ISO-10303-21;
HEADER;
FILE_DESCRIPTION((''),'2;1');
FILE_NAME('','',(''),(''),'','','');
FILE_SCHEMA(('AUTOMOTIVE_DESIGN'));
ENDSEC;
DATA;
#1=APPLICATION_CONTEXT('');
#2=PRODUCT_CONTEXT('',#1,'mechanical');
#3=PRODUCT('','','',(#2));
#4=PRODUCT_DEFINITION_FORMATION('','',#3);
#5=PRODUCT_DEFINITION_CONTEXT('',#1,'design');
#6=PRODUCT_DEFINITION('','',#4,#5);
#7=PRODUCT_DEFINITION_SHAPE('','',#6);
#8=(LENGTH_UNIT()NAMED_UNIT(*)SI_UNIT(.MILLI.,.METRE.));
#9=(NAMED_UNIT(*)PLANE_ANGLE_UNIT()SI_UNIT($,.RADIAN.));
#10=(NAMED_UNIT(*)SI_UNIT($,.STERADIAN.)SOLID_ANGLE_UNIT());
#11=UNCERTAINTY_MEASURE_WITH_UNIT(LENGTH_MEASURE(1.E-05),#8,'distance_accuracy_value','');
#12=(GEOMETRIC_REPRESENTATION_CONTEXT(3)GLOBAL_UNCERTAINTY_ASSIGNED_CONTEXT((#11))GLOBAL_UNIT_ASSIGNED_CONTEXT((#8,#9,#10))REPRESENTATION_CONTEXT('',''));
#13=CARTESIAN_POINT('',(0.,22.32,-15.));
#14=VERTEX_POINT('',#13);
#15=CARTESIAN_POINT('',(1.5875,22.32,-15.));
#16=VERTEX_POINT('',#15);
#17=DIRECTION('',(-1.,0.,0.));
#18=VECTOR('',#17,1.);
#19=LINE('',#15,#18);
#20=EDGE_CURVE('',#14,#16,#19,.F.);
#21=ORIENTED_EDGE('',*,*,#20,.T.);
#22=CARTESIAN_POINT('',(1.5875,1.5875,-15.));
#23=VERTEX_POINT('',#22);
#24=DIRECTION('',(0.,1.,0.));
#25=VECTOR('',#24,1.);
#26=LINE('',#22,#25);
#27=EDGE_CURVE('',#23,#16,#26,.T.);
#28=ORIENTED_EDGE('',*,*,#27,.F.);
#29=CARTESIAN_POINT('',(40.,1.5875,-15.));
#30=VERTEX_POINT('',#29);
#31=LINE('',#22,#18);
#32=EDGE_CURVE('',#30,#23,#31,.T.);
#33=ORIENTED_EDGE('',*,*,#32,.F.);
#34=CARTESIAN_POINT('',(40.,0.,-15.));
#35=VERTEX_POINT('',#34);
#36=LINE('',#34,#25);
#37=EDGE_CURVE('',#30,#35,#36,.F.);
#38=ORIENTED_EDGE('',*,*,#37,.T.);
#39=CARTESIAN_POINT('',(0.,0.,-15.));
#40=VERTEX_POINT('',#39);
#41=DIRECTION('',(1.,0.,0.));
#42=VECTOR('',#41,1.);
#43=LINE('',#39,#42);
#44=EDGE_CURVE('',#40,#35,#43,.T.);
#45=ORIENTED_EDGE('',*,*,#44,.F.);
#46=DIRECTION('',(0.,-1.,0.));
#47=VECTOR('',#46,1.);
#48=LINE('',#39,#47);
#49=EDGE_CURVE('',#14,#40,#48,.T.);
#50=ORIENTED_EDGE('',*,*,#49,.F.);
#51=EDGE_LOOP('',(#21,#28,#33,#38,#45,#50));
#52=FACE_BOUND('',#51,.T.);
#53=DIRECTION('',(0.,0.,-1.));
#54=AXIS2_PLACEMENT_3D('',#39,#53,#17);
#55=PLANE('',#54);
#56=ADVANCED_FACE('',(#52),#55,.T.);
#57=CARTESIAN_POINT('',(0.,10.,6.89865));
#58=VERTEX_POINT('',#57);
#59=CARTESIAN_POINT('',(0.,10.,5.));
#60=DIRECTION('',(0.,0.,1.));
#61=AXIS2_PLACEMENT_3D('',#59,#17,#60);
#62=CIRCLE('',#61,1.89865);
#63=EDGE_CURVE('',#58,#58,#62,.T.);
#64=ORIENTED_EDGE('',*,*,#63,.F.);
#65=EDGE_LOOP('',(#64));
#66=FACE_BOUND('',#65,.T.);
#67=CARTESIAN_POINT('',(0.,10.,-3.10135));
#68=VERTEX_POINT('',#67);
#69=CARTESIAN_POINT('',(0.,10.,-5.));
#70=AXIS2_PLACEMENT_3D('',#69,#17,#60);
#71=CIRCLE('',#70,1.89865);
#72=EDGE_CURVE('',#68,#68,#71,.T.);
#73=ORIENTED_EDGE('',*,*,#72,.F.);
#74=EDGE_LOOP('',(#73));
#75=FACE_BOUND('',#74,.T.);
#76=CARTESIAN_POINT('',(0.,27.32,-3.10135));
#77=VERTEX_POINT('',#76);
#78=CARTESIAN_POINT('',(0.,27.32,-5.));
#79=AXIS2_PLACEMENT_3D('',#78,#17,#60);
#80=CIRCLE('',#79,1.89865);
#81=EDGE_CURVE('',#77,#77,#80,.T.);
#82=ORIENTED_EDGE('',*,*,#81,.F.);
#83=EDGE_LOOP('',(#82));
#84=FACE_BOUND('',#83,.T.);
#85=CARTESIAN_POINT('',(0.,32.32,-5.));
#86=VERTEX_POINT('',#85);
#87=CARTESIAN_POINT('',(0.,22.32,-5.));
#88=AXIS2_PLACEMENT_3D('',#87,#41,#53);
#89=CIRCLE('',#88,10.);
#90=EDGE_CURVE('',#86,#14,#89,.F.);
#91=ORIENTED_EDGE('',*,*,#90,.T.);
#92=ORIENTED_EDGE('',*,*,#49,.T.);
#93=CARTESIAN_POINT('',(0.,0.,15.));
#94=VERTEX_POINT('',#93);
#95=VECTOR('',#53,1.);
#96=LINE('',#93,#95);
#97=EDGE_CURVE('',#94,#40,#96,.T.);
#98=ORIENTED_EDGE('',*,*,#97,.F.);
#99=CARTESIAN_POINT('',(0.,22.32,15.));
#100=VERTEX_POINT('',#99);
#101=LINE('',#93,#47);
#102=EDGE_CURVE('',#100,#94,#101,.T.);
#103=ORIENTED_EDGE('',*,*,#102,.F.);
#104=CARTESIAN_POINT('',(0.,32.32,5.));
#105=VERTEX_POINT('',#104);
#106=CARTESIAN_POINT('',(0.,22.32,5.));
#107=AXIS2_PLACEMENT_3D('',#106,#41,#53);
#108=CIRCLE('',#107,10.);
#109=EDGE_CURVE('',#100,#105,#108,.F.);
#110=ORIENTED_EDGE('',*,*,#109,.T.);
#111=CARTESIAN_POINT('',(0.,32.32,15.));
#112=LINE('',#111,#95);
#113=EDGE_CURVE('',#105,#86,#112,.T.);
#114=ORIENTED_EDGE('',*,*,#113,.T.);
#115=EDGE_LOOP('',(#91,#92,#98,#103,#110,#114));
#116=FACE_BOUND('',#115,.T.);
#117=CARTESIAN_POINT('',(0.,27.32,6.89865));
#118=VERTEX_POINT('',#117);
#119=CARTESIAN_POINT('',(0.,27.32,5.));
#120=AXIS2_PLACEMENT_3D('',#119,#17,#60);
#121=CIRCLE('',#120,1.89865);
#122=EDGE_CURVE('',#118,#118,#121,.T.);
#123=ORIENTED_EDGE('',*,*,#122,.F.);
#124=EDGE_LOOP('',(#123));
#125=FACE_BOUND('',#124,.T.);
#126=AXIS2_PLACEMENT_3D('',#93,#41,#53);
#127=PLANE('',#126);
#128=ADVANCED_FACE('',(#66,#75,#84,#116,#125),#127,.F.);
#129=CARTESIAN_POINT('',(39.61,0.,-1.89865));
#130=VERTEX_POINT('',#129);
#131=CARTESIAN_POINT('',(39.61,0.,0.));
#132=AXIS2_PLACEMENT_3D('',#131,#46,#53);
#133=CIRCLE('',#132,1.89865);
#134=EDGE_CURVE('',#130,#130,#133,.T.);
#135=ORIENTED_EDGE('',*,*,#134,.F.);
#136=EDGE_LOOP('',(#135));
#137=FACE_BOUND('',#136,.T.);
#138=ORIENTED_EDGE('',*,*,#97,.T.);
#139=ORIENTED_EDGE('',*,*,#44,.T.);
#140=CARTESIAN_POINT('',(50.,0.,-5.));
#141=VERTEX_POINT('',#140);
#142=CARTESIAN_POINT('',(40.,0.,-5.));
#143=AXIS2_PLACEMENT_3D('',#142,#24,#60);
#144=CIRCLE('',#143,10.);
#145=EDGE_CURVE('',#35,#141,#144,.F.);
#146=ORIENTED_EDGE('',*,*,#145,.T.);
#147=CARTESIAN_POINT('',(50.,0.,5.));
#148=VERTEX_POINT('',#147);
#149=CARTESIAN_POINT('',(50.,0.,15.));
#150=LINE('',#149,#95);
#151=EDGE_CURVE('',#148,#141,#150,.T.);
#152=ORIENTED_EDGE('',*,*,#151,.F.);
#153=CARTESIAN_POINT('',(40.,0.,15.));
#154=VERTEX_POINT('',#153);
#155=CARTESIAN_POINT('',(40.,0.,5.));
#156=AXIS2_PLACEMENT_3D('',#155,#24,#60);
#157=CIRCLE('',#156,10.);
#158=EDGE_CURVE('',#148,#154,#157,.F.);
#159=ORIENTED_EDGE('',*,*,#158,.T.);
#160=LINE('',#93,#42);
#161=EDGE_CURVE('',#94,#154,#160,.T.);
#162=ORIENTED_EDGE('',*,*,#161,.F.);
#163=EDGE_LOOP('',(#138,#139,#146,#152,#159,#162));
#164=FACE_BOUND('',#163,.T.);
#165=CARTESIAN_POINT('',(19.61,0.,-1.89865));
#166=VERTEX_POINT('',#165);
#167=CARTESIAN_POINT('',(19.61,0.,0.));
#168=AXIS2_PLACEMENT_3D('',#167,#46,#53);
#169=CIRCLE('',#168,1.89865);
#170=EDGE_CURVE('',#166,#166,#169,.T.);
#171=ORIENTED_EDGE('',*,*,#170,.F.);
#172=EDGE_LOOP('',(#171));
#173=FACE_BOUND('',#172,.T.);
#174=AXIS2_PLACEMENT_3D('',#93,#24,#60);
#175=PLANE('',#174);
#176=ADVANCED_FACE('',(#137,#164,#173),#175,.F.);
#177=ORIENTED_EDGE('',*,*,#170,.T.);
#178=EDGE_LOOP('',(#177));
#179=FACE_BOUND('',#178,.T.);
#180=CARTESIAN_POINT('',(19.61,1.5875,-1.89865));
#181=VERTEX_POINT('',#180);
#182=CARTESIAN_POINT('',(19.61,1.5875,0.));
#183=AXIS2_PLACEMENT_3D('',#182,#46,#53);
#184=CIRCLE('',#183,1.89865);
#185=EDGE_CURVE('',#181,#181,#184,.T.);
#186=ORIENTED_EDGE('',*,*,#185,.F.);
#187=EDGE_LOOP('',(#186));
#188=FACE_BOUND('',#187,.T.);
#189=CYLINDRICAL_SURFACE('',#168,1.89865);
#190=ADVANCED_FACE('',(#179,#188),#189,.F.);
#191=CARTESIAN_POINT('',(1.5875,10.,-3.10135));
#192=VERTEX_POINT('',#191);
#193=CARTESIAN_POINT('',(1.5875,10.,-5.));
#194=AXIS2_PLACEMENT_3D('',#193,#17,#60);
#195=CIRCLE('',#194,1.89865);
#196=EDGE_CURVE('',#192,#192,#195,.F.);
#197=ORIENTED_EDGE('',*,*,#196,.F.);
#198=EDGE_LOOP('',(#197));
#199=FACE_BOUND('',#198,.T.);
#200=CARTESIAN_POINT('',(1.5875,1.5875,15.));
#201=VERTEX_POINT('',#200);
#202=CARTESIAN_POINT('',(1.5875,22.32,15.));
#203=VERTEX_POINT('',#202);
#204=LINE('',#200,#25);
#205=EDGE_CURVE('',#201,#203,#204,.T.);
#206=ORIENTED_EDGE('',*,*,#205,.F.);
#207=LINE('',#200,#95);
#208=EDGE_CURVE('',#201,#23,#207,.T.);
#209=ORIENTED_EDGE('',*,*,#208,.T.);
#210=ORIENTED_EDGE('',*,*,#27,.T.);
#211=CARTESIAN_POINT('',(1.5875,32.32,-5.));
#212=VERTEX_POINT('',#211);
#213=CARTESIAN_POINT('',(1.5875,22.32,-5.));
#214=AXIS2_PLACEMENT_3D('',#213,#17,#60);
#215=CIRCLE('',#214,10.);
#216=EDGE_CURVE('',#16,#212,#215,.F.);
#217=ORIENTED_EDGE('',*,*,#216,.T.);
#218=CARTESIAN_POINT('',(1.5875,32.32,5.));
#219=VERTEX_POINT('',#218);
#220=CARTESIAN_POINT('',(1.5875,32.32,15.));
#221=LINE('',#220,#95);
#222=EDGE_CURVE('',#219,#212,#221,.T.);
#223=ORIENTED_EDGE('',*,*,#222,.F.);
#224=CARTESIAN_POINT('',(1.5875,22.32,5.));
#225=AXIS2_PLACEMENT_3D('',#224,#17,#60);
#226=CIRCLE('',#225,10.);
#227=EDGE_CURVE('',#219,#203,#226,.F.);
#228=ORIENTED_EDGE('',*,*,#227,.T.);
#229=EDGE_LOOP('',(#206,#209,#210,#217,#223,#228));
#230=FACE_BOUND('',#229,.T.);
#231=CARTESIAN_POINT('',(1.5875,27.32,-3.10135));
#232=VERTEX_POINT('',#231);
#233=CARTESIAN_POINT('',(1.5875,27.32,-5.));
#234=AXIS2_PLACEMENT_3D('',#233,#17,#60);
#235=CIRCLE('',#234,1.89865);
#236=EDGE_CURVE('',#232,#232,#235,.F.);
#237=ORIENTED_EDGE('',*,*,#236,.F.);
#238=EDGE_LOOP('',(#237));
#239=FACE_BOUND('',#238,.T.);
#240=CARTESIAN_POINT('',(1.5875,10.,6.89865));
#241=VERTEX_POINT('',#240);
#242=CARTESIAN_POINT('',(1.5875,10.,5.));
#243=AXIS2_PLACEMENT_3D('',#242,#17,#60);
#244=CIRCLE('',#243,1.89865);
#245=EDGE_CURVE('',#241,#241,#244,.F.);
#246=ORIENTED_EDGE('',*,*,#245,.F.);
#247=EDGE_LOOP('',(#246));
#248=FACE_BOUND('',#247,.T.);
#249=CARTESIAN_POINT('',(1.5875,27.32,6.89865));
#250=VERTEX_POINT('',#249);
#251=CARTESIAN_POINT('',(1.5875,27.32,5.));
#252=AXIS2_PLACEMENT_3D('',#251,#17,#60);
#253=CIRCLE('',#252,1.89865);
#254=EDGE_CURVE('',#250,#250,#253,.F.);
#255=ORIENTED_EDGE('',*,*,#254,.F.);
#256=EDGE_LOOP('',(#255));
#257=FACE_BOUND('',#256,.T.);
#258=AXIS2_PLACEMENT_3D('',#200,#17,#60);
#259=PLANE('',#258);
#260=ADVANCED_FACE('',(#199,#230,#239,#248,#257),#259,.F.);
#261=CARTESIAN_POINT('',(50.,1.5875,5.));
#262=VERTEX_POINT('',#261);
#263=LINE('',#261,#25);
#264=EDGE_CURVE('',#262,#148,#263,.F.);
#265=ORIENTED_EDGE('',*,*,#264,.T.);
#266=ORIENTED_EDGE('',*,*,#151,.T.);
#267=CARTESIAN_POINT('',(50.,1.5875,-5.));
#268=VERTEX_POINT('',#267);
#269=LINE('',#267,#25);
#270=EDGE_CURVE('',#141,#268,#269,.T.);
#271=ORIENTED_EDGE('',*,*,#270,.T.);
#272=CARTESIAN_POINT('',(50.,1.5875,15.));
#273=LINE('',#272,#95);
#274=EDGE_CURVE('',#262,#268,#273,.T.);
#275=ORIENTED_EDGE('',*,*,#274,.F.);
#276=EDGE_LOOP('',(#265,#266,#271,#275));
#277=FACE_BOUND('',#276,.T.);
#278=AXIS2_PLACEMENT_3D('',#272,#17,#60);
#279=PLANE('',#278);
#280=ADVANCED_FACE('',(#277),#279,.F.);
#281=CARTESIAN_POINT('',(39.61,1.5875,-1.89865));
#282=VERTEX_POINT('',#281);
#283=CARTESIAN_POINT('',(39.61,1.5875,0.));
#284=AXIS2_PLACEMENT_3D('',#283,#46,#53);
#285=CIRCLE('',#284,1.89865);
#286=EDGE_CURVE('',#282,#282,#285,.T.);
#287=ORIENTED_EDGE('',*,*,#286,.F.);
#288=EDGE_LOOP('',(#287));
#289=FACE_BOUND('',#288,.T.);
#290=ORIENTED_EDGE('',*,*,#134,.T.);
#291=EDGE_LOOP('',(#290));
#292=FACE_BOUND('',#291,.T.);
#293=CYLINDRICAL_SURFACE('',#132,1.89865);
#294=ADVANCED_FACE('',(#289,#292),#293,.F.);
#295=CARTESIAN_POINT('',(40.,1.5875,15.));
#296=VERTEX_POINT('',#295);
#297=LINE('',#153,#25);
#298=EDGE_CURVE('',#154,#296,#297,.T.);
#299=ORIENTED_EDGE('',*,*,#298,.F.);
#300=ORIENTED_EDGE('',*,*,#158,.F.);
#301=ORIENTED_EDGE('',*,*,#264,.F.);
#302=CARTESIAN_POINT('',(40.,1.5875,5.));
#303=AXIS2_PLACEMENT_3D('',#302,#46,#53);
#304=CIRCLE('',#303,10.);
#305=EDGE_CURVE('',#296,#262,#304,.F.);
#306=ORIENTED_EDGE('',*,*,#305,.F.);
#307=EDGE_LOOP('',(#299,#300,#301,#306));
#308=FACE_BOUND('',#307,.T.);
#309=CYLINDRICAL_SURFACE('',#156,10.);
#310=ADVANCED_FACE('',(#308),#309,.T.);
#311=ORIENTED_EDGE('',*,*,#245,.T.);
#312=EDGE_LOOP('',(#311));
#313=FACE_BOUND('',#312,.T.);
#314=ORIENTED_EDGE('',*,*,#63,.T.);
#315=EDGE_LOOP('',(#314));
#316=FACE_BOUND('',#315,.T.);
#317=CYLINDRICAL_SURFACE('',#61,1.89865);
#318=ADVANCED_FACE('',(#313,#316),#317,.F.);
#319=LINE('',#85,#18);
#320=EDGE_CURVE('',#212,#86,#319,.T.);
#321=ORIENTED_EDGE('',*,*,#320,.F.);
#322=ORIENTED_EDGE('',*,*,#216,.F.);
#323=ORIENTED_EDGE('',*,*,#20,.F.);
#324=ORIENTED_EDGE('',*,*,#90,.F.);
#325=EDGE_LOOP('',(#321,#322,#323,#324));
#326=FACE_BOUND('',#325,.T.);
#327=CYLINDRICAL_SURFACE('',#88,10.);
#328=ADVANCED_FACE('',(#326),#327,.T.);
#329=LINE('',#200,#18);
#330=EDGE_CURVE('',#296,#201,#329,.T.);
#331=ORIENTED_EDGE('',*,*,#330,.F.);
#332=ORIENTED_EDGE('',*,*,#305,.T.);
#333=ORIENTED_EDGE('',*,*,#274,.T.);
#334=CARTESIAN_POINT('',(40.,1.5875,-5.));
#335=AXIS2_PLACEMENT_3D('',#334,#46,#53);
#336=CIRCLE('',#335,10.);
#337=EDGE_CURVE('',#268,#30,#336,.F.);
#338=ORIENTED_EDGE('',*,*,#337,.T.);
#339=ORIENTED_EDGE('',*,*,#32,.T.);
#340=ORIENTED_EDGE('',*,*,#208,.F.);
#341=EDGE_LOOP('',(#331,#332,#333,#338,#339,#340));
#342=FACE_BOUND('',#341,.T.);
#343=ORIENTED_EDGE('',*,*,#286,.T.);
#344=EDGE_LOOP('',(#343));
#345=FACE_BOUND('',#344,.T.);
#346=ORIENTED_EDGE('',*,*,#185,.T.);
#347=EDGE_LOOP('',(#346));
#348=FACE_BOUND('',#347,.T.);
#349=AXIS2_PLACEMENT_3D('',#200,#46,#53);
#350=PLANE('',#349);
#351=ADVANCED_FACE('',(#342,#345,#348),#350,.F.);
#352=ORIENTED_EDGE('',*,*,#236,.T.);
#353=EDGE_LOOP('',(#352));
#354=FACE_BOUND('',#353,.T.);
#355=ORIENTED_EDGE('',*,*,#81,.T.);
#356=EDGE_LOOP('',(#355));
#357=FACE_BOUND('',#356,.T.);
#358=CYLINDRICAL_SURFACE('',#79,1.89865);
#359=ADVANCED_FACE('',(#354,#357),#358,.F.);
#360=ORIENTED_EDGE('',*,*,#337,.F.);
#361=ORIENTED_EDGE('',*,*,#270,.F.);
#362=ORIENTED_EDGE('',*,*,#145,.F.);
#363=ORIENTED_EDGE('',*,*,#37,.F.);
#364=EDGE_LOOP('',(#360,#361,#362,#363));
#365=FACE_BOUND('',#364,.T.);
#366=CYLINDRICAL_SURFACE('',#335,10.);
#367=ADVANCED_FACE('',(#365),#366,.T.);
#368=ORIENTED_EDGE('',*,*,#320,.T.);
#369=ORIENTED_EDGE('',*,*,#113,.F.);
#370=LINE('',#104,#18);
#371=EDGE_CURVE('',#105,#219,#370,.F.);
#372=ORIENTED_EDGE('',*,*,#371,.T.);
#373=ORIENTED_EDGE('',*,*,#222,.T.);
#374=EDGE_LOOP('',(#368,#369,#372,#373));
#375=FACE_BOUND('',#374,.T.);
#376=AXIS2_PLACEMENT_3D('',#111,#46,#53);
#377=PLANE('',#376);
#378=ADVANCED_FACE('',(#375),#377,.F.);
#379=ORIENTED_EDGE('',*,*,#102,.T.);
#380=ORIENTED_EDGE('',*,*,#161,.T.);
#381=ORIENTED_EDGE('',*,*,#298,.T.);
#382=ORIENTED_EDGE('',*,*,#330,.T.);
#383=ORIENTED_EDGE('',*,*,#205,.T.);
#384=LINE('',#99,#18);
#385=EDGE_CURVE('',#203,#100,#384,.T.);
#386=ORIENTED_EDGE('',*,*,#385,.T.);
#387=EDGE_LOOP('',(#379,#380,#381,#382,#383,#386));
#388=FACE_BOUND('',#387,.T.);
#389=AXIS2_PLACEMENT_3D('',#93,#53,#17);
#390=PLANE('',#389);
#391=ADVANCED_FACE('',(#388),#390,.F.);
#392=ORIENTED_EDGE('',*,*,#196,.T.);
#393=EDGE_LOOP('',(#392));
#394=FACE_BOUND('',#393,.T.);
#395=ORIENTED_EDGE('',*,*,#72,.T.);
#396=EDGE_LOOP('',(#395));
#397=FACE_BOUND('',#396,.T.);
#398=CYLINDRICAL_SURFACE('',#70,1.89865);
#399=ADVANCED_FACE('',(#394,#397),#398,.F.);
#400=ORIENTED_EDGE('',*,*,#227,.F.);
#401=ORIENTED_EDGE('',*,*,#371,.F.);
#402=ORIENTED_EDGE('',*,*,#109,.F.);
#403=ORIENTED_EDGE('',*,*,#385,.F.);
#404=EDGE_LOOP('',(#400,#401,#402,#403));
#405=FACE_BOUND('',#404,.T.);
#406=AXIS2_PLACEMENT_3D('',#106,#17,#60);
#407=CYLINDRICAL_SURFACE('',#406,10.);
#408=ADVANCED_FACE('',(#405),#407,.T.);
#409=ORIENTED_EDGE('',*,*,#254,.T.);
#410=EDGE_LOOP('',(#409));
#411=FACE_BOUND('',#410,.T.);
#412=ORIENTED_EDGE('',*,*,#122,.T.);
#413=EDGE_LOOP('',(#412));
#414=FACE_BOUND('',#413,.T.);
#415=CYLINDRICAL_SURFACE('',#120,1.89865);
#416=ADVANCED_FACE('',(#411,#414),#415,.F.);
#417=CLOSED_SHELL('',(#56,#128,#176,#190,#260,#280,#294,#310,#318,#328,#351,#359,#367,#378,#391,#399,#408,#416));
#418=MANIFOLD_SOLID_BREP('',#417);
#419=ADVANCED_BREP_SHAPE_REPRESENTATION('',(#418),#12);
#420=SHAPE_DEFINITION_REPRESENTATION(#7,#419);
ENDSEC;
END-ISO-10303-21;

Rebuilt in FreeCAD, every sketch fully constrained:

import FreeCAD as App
import Part
import Sketcher

V = App.Vector
Q = App.Units.Quantity


def edges_at(feature, points):
    """Names of the edges that pass closest to the given points."""
    edges = feature.Shape.Edges
    near = lambda p: min(range(len(edges)), key=lambda i: edges[i].distToShape(Part.Vertex(*p))[0])
    return sorted({f"Edge{near(p) + 1}" for p in points})

doc = App.newDocument("Part")
body = doc.addObject("PartDesign::Body", "Body")

sketch1 = body.newObject("Sketcher::SketchObject", "Sketch")
sketch1.AttachmentSupport = (doc.getObject("XY_Plane"), [""])
sketch1.MapMode = "FlatFace"
sketch1.addGeometry([
    Part.LineSegment(V(0, 0, 0), V(50, 0, 0)),
    Part.LineSegment(V(50, 0, 0), V(50, 1.6, 0)),
    Part.LineSegment(V(50, 1.6, 0), V(1.6, 1.6, 0)),
    Part.LineSegment(V(1.6, 1.6, 0), V(1.6, 32.3, 0)),
    Part.LineSegment(V(1.6, 32.3, 0), V(0, 32.3, 0)),
    Part.LineSegment(V(0, 32.3, 0), V(0, 0, 0)),
], False)
sketch1.addConstraint([
    Sketcher.Constraint("Coincident", 0, 2, 1, 1),
    Sketcher.Constraint("Coincident", 1, 2, 2, 1),
    Sketcher.Constraint("Coincident", 2, 2, 3, 1),
    Sketcher.Constraint("Coincident", 3, 2, 4, 1),
    Sketcher.Constraint("Coincident", 4, 2, 5, 1),
    Sketcher.Constraint("Coincident", 5, 2, 0, 1),
    Sketcher.Constraint("Horizontal", 0),
    Sketcher.Constraint("Vertical", 1),
    Sketcher.Constraint("Horizontal", 2),
    Sketcher.Constraint("Vertical", 3),
    Sketcher.Constraint("Horizontal", 4),
    Sketcher.Constraint("Vertical", 5),
    Sketcher.Constraint("Coincident", 5, 2, -1, 1),
    Sketcher.Constraint("Equal", 4, 1),
    Sketcher.Constraint("DistanceX", 0, 1, 0, 2, Q("50 mm")),
    Sketcher.Constraint("DistanceY", 5, 2, 5, 1, Q("32.32 mm")),
    Sketcher.Constraint("DistanceX", 2, 2, 2, 1, Q("48.4125 mm")),
])
pad1 = body.newObject("PartDesign::Pad", "Pad")
pad1.Profile = sketch1
pad1.Length = 30
pad1.Midplane = True

sketch2 = body.newObject("Sketcher::SketchObject", "Sketch001")
sketch2.AttachmentSupport = (doc.getObject("YZ_Plane"), [""])
sketch2.MapMode = "FlatFace"
sketch2.addGeometry([
    Part.Circle(V(27.3, -5, 0), V(0, 0, 1), 1.9),
    Part.Circle(V(10, 5, 0), V(0, 0, 1), 1.9),
    Part.Circle(V(27.3, 5, 0), V(0, 0, 1), 1.9),
    Part.Circle(V(10, -5, 0), V(0, 0, 1), 1.9),
], False)
sketch2.addConstraint([
    Sketcher.Constraint("Equal", 0, 1),
    Sketcher.Constraint("Equal", 1, 2),
    Sketcher.Constraint("Equal", 2, 3),
    Sketcher.Constraint("Symmetric", 0, 3, 2, 3, -1),
    Sketcher.Constraint("Symmetric", 1, 3, 3, 3, -1),
    Sketcher.Constraint("Horizontal", 1, 3, 2, 3),
    Sketcher.Constraint("DistanceY", 0, 3, -1, 1, Q("5 mm")),
    Sketcher.Constraint("DistanceX", -1, 1, 1, 3, Q("10 mm")),
    Sketcher.Constraint("Diameter", 0, Q("3.7973 mm")),
    Sketcher.Constraint("DistanceX", -1, 1, 0, 3, Q("27.32 mm")),
])
doc.recompute()
hole = body.newObject("PartDesign::Hole", "Hole")
hole.Profile = sketch2
hole.ThreadType = "None"
hole.Diameter = 3.7973
hole.DepthType = "ThroughAll"
hole.Reversed = True
doc.recompute()

fillet = body.newObject("PartDesign::Fillet", "Fillet")
fillet.Base = (hole, edges_at(hole, [
    (50, 0.794, 15),
    (0.794, 32.32, 15),
    (0.794, 32.32, -15),
    (50, 0.794, -15),
]))
fillet.Radius = 10

sketch3 = body.newObject("Sketcher::SketchObject", "Sketch002")
sketch3.AttachmentSupport = (doc.getObject("XZ_Plane"), [""])
sketch3.MapMode = "FlatFace"
sketch3.addGeometry([
    Part.Circle(V(19.6, 0, 0), V(0, 0, 1), 1.9),
    Part.Circle(V(39.6, 0, 0), V(0, 0, 1), 1.9),
], False)
sketch3.addConstraint([
    Sketcher.Constraint("Equal", 0, 1),
    Sketcher.Constraint("PointOnObject", 0, 3, -1),
    Sketcher.Constraint("PointOnObject", 1, 3, -1),
    Sketcher.Constraint("DistanceX", 0, 3, 1, 3, Q("20 mm")),
    Sketcher.Constraint("Diameter", 0, Q("3.7973 mm")),
    Sketcher.Constraint("DistanceX", -1, 1, 0, 3, Q("19.61 mm")),
])
doc.recompute()
hole2 = body.newObject("PartDesign::Hole", "Hole001")
hole2.Profile = sketch3
hole2.ThreadType = "None"
hole2.Diameter = 3.7973
hole2.DepthType = "ThroughAll"

doc.recompute()
